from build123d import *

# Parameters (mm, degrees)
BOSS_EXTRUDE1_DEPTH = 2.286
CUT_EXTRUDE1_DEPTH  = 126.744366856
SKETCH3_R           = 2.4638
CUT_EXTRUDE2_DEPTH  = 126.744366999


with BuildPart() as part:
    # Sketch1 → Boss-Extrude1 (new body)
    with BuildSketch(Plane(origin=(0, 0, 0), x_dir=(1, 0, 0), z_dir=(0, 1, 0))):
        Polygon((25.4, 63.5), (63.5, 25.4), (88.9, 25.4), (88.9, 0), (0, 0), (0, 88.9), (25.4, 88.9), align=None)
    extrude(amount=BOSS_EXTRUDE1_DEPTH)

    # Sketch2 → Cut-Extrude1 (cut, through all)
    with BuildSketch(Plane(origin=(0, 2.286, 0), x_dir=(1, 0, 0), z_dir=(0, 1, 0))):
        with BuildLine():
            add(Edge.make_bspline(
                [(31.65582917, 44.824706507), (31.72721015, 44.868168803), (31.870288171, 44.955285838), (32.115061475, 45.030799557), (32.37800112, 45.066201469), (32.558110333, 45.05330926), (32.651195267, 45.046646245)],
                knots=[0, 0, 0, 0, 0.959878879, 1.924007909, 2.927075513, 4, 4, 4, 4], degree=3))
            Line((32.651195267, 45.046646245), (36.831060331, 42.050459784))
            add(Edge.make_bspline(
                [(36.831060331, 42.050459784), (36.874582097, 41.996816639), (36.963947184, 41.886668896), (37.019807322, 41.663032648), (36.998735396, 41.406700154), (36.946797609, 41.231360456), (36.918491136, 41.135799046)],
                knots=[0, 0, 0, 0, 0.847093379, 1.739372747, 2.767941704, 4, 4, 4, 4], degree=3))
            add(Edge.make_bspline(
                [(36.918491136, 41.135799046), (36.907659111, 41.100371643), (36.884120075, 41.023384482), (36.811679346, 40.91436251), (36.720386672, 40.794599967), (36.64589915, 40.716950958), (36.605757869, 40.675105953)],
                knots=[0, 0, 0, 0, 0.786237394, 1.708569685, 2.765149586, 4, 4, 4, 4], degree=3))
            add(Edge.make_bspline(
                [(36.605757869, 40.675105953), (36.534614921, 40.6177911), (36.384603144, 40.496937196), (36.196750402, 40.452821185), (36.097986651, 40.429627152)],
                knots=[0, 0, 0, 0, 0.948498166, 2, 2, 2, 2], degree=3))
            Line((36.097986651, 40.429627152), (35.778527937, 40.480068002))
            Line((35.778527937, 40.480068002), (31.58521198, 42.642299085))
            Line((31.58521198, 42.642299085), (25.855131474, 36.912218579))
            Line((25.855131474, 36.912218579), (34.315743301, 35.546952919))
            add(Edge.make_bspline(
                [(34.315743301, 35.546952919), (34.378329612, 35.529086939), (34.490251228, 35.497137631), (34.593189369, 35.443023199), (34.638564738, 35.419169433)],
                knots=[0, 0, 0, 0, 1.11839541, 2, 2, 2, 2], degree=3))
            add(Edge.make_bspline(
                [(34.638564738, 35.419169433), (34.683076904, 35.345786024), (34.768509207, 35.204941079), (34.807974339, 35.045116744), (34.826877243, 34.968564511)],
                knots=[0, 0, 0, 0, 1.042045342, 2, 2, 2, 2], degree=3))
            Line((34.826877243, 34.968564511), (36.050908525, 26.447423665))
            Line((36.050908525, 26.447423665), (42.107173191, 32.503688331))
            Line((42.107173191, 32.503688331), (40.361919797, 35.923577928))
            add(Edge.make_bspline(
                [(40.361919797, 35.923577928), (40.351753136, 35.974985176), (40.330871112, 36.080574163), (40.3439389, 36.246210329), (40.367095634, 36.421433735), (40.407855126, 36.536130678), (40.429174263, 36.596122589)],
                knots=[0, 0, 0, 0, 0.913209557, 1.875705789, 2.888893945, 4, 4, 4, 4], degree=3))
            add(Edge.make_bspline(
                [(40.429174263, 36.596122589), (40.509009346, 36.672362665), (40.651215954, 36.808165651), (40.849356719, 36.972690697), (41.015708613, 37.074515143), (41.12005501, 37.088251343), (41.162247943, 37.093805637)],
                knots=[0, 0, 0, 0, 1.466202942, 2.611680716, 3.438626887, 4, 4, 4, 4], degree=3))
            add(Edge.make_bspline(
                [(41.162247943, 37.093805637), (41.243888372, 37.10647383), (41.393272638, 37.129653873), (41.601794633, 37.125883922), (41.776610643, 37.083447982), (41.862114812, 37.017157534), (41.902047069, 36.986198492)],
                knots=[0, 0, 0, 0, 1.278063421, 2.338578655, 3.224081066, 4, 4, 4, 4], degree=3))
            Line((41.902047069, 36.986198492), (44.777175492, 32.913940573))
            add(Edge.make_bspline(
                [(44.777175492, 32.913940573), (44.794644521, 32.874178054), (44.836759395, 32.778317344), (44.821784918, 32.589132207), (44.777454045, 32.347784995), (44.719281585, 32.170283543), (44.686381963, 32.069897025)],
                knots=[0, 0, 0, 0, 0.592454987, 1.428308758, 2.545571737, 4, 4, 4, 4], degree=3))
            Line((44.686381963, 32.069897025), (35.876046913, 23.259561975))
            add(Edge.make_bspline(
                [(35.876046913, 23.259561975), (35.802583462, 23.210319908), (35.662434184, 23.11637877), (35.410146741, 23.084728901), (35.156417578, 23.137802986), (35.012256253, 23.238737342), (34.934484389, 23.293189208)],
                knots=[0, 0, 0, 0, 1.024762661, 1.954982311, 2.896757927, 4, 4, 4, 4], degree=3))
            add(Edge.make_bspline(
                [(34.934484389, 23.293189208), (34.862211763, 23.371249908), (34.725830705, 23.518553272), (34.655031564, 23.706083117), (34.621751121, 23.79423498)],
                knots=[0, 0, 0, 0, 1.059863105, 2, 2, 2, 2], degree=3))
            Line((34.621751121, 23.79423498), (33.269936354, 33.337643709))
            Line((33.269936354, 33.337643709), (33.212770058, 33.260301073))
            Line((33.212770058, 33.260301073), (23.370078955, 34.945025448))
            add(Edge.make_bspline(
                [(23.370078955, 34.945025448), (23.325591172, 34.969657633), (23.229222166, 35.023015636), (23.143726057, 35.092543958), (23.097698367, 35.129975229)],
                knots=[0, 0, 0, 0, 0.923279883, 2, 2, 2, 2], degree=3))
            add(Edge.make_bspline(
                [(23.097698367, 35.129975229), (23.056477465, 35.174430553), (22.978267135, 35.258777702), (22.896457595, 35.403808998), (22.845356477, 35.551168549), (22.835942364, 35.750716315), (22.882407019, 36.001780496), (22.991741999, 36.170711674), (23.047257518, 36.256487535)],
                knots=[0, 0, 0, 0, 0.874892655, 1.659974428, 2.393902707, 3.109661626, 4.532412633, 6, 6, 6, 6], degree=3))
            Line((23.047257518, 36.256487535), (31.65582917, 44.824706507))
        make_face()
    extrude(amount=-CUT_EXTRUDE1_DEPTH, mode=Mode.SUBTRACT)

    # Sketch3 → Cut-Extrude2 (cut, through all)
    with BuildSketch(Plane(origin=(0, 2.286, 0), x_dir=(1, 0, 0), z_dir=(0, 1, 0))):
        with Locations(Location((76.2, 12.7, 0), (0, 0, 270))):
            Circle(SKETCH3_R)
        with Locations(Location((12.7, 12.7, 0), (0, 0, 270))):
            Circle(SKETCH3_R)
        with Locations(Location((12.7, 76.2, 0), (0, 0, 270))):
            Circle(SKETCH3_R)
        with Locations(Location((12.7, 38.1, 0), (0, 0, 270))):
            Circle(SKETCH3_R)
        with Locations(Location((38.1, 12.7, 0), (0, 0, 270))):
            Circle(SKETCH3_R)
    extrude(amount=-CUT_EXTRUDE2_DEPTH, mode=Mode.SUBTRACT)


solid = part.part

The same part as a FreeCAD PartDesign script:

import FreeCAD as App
import Part
import Sketcher
from FreeCAD import Vector
Q = App.Units.Quantity

doc = App.newDocument("Part")
body = doc.addObject("PartDesign::Body", "Body")

# Sketch on XZ plane
sketch1 = body.newObject("Sketcher::SketchObject", "Sketch")
sketch1.AttachmentSupport = (doc.getObject("XZ_Plane"), [""])
sketch1.MapMode = "FlatFace"
sketch1.addGeometry(Part.LineSegment(Vector(63.5, -25.4, 0), Vector(25.4, -63.5, 0)), False)
sketch1.addGeometry(Part.LineSegment(Vector(25.4, -63.5, 0), Vector(25.4, -88.9, 0)), False)
sketch1.addGeometry(Part.LineSegment(Vector(25.4, -88.9, 0), Vector(0, -88.9, 0)), False)
sketch1.addGeometry(Part.LineSegment(Vector(0, -88.9, 0), Vector(0, 0, 0)), False)
sketch1.addGeometry(Part.LineSegment(Vector(0, 0, 0), Vector(88.9, 0, 0)), False)
sketch1.addGeometry(Part.LineSegment(Vector(88.9, 0, 0), Vector(88.9, -25.4, 0)), False)
sketch1.addGeometry(Part.LineSegment(Vector(88.9, -25.4, 0), Vector(63.5, -25.4, 0)), False)
sketch1.addConstraint(Sketcher.Constraint("Coincident", 0, 2, 1, 1))
sketch1.addConstraint(Sketcher.Constraint("Coincident", 1, 2, 2, 1))
sketch1.addConstraint(Sketcher.Constraint("Coincident", 2, 2, 3, 1))
sketch1.addConstraint(Sketcher.Constraint("Coincident", 3, 2, 4, 1))
sketch1.addConstraint(Sketcher.Constraint("Coincident", 4, 2, 5, 1))
sketch1.addConstraint(Sketcher.Constraint("Coincident", 5, 2, 6, 1))
sketch1.addConstraint(Sketcher.Constraint("Coincident", 6, 2, 0, 1))
sketch1.addConstraint(Sketcher.Constraint("Vertical", 1))
sketch1.addConstraint(Sketcher.Constraint("Horizontal", 2))
sketch1.addConstraint(Sketcher.Constraint("Vertical", 3))
sketch1.addConstraint(Sketcher.Constraint("Horizontal", 4))
sketch1.addConstraint(Sketcher.Constraint("Vertical", 5))
sketch1.addConstraint(Sketcher.Constraint("Horizontal", 6))
sketch1.addConstraint(Sketcher.Constraint("Coincident", 3, 2, -1, 1))
sketch1.addConstraint(Sketcher.Constraint("Equal", 2, 6))
sketch1.addConstraint(Sketcher.Constraint("Equal", 6, 1))
sketch1.addConstraint(Sketcher.Constraint("Equal", 4, 3))
sketch1.addConstraint(Sketcher.Constraint("Equal", 1, 5))
sketch1.addConstraint(Sketcher.Constraint("DistanceX", 2, 2, 2, 1, Q("1 in")))
sketch1.addConstraint(Sketcher.Constraint("DistanceX", 4, 1, 4, 2, Q("3.5 in")))
pad1 = body.newObject("PartDesign::Pad", "Pad")
pad1.Profile = sketch1
pad1.Length = Q("0.09 in")
pad1.Reversed = True

# Sketch on XZ plane
sketch2 = body.newObject("Sketcher::SketchObject", "Sketch001")
sketch2.AttachmentSupport = (doc.getObject("XZ_Plane"), [""])
sketch2.MapMode = "FlatFace"
sketch2.AttachmentOffset = App.Placement(Vector(0, 0, -0.09 * 25.4), App.Rotation())
sketch2.addGeometry(Part.BSplineCurve([Vector(31.655829, -44.824707, 0), Vector(31.72721, -44.868169, 0), Vector(31.870288, -44.955286, 0), Vector(32.115061, -45.0308, 0), Vector(32.378001, -45.066201, 0), Vector(32.55811, -45.053309, 0), Vector(32.651195, -45.046646, 0)], [4, 1, 1, 1, 4], [0, 0.959878879, 1.924007909, 2.927075513, 4], False, 3, [1, 1, 1, 1, 1, 1, 1], False), False)
sketch2.addGeometry(Part.LineSegment(Vector(31.655829, -44.824707, 0), Vector(23.047258, -36.256488, 0)), False)
sketch2.addGeometry(Part.BSplineCurve([Vector(23.097698, -35.129975, 0), Vector(23.056477, -35.174431, 0), Vector(22.978267, -35.258778, 0), Vector(22.896458, -35.403809, 0), Vector(22.845356, -35.551169, 0), Vector(22.835942, -35.750716, 0), Vector(22.882407, -36.00178, 0), Vector(22.991742, -36.170712, 0), Vector(23.047258, -36.256488, 0)], [4, 1, 1, 1, 1, 1, 4], [0, 0.874892655, 1.659974428, 2.393902707, 3.109661626, 4.532412633, 6], False, 3, [1, 1, 1, 1, 1, 1, 1, 1, 1], False), False)
sketch2.addGeometry(Part.BSplineCurve([Vector(23.370079, -34.945025, 0), Vector(23.325591, -34.969658, 0), Vector(23.229222, -35.023016, 0), Vector(23.143726, -35.092544, 0), Vector(23.097698, -35.129975, 0)], [4, 1, 4], [0, 0.923279883, 2], False, 3, [1, 1, 1, 1, 1], False), False)
sketch2.addGeometry(Part.LineSegment(Vector(23.370079, -34.945025, 0), Vector(33.21277, -33.260301, 0)), False)
sketch2.addGeometry(Part.LineSegment(Vector(33.21277, -33.260301, 0), Vector(33.269936, -33.337644, 0)), False)
sketch2.addGeometry(Part.LineSegment(Vector(33.269936, -33.337644, 0), Vector(34.621751, -23.794235, 0)), False)
sketch2.addGeometry(Part.BSplineCurve([Vector(34.934484, -23.293189, 0), Vector(34.862212, -23.37125, 0), Vector(34.725831, -23.518553, 0), Vector(34.655032, -23.706083, 0), Vector(34.621751, -23.794235, 0)], [4, 1, 4], [0, 1.059863105, 2], False, 3, [1, 1, 1, 1, 1], False), False)
sketch2.addGeometry(Part.BSplineCurve([Vector(35.876047, -23.259562, 0), Vector(35.802583, -23.21032, 0), Vector(35.662434, -23.116379, 0), Vector(35.410147, -23.084729, 0), Vector(35.156418, -23.137803, 0), Vector(35.012256, -23.238737, 0), Vector(34.934484, -23.293189, 0)], [4, 1, 1, 1, 4], [0, 1.024762661, 1.954982311, 2.896757927, 4], False, 3, [1, 1, 1, 1, 1, 1, 1], False), False)
sketch2.addGeometry(Part.LineSegment(Vector(35.876047, -23.259562, 0), Vector(44.686382, -32.069897, 0)), False)
sketch2.addGeometry(Part.BSplineCurve([Vector(44.777175, -32.913941, 0), Vector(44.794645, -32.874178, 0), Vector(44.836759, -32.778317, 0), Vector(44.821785, -32.589132, 0), Vector(44.777454, -32.347785, 0), Vector(44.719282, -32.170284, 0), Vector(44.686382, -32.069897, 0)], [4, 1, 1, 1, 4], [0, 0.592454987, 1.428308758, 2.545571737, 4], False, 3, [1, 1, 1, 1, 1, 1, 1], False), False)
sketch2.addGeometry(Part.LineSegment(Vector(44.777175, -32.913941, 0), Vector(41.902047, -36.986198, 0)), False)
sketch2.addGeometry(Part.BSplineCurve([Vector(41.162248, -37.093806, 0), Vector(41.243888, -37.106474, 0), Vector(41.393273, -37.129654, 0), Vector(41.601795, -37.125884, 0), Vector(41.776611, -37.083448, 0), Vector(41.862115, -37.017158, 0), Vector(41.902047, -36.986198, 0)], [4, 1, 1, 1, 4], [0, 1.278063421, 2.338578655, 3.224081066, 4], False, 3, [1, 1, 1, 1, 1, 1, 1], False), False)
sketch2.addGeometry(Part.BSplineCurve([Vector(40.429174, -36.596123, 0), Vector(40.509009, -36.672363, 0), Vector(40.651216, -36.808166, 0), Vector(40.849357, -36.972691, 0), Vector(41.015709, -37.074515, 0), Vector(41.120055, -37.088251, 0), Vector(41.162248, -37.093806, 0)], [4, 1, 1, 1, 4], [0, 1.466202942, 2.611680716, 3.438626887, 4], False, 3, [1, 1, 1, 1, 1, 1, 1], False), False)
sketch2.addGeometry(Part.BSplineCurve([Vector(40.36192, -35.923578, 0), Vector(40.351753, -35.974985, 0), Vector(40.330871, -36.080574, 0), Vector(40.343939, -36.24621, 0), Vector(40.367096, -36.421434, 0), Vector(40.407855, -36.536131, 0), Vector(40.429174, -36.596123, 0)], [4, 1, 1, 1, 4], [0, 0.913209557, 1.875705789, 2.888893945, 4], False, 3, [1, 1, 1, 1, 1, 1, 1], False), False)
sketch2.addGeometry(Part.LineSegment(Vector(40.36192, -35.923578, 0), Vector(42.107173, -32.503688, 0)), False)
sketch2.addGeometry(Part.LineSegment(Vector(42.107173, -32.503688, 0), Vector(36.050909, -26.447424, 0)), False)
sketch2.addGeometry(Part.LineSegment(Vector(36.050909, -26.447424, 0), Vector(34.826877, -34.968565, 0)), False)
sketch2.addGeometry(Part.BSplineCurve([Vector(34.638565, -35.419169, 0), Vector(34.683077, -35.345786, 0), Vector(34.768509, -35.204941, 0), Vector(34.807974, -35.045117, 0), Vector(34.826877, -34.968565, 0)], [4, 1, 4], [0, 1.042045342, 2], False, 3, [1, 1, 1, 1, 1], False), False)
sketch2.addGeometry(Part.BSplineCurve([Vector(34.315743, -35.546953, 0), Vector(34.37833, -35.529087, 0), Vector(34.490251, -35.497138, 0), Vector(34.593189, -35.443023, 0), Vector(34.638565, -35.419169, 0)], [4, 1, 4], [0, 1.11839541, 2], False, 3, [1, 1, 1, 1, 1], False), False)
sketch2.addGeometry(Part.LineSegment(Vector(34.315743, -35.546953, 0), Vector(25.855131, -36.912219, 0)), False)
sketch2.addGeometry(Part.LineSegment(Vector(25.855131, -36.912219, 0), Vector(31.585212, -42.642299, 0)), False)
sketch2.addGeometry(Part.LineSegment(Vector(31.585212, -42.642299, 0), Vector(35.778528, -40.480068, 0)), False)
sketch2.addGeometry(Part.LineSegment(Vector(35.778528, -40.480068, 0), Vector(36.097987, -40.429627, 0)), False)
sketch2.addGeometry(Part.BSplineCurve([Vector(36.605758, -40.675106, 0), Vector(36.534615, -40.617791, 0), Vector(36.384603, -40.496937, 0), Vector(36.19675, -40.452821, 0), Vector(36.097987, -40.429627, 0)], [4, 1, 4], [0, 0.948498166, 2], False, 3, [1, 1, 1, 1, 1], False), False)
sketch2.addGeometry(Part.BSplineCurve([Vector(36.918491, -41.135799, 0), Vector(36.907659, -41.100372, 0), Vector(36.88412, -41.023384, 0), Vector(36.811679, -40.914363, 0), Vector(36.720387, -40.7946, 0), Vector(36.645899, -40.716951, 0), Vector(36.605758, -40.675106, 0)], [4, 1, 1, 1, 4], [0, 0.786237394, 1.708569685, 2.765149586, 4], False, 3, [1, 1, 1, 1, 1, 1, 1], False), False)
sketch2.addGeometry(Part.BSplineCurve([Vector(36.83106, -42.05046, 0), Vector(36.874582, -41.996817, 0), Vector(36.963947, -41.886669, 0), Vector(37.019807, -41.663033, 0), Vector(36.998735, -41.4067, 0), Vector(36.946798, -41.23136, 0), Vector(36.918491, -41.135799, 0)], [4, 1, 1, 1, 4], [0, 0.847093379, 1.739372747, 2.767941704, 4], False, 3, [1, 1, 1, 1, 1, 1, 1], False), False)
sketch2.addGeometry(Part.LineSegment(Vector(36.83106, -42.05046, 0), Vector(32.651195, -45.046646, 0)), False)
sketch2.addConstraint(Sketcher.Constraint("Block", 0))
sketch2.addConstraint(Sketcher.Constraint("Block", 2))
sketch2.addConstraint(Sketcher.Constraint("Block", 3))
sketch2.addConstraint(Sketcher.Constraint("Block", 7))
sketch2.addConstraint(Sketcher.Constraint("Block", 8))
sketch2.addConstraint(Sketcher.Constraint("Block", 10))
sketch2.addConstraint(Sketcher.Constraint("Block", 12))
sketch2.addConstraint(Sketcher.Constraint("Block", 13))
sketch2.addConstraint(Sketcher.Constraint("Block", 14))
sketch2.addConstraint(Sketcher.Constraint("Block", 18))
sketch2.addConstraint(Sketcher.Constraint("Block", 19))
sketch2.addConstraint(Sketcher.Constraint("Block", 24))
sketch2.addConstraint(Sketcher.Constraint("Block", 25))
sketch2.addConstraint(Sketcher.Constraint("Block", 26))
sketch2.addConstraint(Sketcher.Constraint("Coincident", 0, 1, 1, 1))
sketch2.addConstraint(Sketcher.Constraint("Coincident", 1, 2, 2, 2))
sketch2.addConstraint(Sketcher.Constraint("Coincident", 3, 1, 4, 1))
sketch2.addConstraint(Sketcher.Constraint("Coincident", 4, 2, 5, 1))
sketch2.addConstraint(Sketcher.Constraint("Coincident", 5, 2, 6, 1))
sketch2.addConstraint(Sketcher.Constraint("Coincident", 6, 2, 7, 2))
sketch2.addConstraint(Sketcher.Constraint("Coincident", 8, 1, 9, 1))
sketch2.addConstraint(Sketcher.Constraint("Coincident", 9, 2, 10, 2))
sketch2.addConstraint(Sketcher.Constraint("Coincident", 10, 1, 11, 1))
sketch2.addConstraint(Sketcher.Constraint("Coincident", 11, 2, 12, 2))
sketch2.addConstraint(Sketcher.Constraint("Coincident", 14, 1, 15, 1))
sketch2.addConstraint(Sketcher.Constraint("Coincident", 15, 2, 16, 1))
sketch2.addConstraint(Sketcher.Constraint("Coincident", 16, 2, 17, 1))
sketch2.addConstraint(Sketcher.Constraint("Coincident", 17, 2, 18, 2))
sketch2.addConstraint(Sketcher.Constraint("Coincident", 19, 1, 20, 1))
sketch2.addConstraint(Sketcher.Constraint("Coincident", 20, 2, 21, 1))
sketch2.addConstraint(Sketcher.Constraint("Coincident", 21, 2, 22, 1))
sketch2.addConstraint(Sketcher.Constraint("Coincident", 22, 2, 23, 1))
sketch2.addConstraint(Sketcher.Constraint("Coincident", 23, 2, 24, 2))
sketch2.addConstraint(Sketcher.Constraint("Coincident", 26, 1, 27, 1))
sketch2.addConstraint(Sketcher.Constraint("Coincident", 27, 2, 0, 2))
sketch2.addConstraint(Sketcher.Constraint("DistanceY", 4, 2, -1, 1, 33.260301))
sketch2.addConstraint(Sketcher.Constraint("DistanceY", 21, 2, -1, 1, 42.642299))
sketch2.addConstraint(Sketcher.Constraint("Distance", 16, 8.564852))
sketch2.addConstraint(Sketcher.Constraint("Distance", 20, 8.570059))
sketch2.addConstraint(Sketcher.Constraint("Distance", 22, 4.71796))
sketch2.addConstraint(Sketcher.Constraint("DistanceX", -1, 1, 4, 2, 33.21277))
sketch2.addConstraint(Sketcher.Constraint("DistanceY", 15, 2, -1, 1, 32.503688))
sketch2.addConstraint(Sketcher.Constraint("DistanceX", -1, 1, 16, 2, 36.050909))
sketch2.addConstraint(Sketcher.Constraint("DistanceX", -1, 1, 20, 2, 25.855131))
sketch2.addConstraint(Sketcher.Constraint("DistanceX", -1, 1, 21, 2, 31.585212))
sketch2.addConstraint(Sketcher.Constraint("DistanceY", 22, 2, -1, 1, 40.480068))
sketch2.addConstraint(Sketcher.Constraint("DistanceX", 1, 2, 5, 2, 10.222679))
sketch2.addConstraint(Sketcher.Constraint("DistanceY", 5, 2, 6, 2, 9.543409))
sketch2.addConstraint(Sketcher.Constraint("DistanceX", 15, 2, 9, 2, 2.579209))
pocket1 = body.newObject("PartDesign::Pocket", "Pocket")
pocket1.Profile = sketch2
pocket1.Type = "ThroughAll"
pocket1.Reversed = True

# Sketch on XZ plane
sketch3 = body.newObject("Sketcher::SketchObject", "Sketch002")
sketch3.AttachmentSupport = (doc.getObject("XZ_Plane"), [""])
sketch3.MapMode = "FlatFace"
sketch3.AttachmentOffset = App.Placement(Vector(0, 0, -0.09 * 25.4), App.Rotation())
sketch3.addGeometry(Part.Circle(Vector(76.2, -12.7, 0), Vector(0, 0, 1), 2.4638), False)
sketch3.addGeometry(Part.Circle(Vector(12.7, -12.7, 0), Vector(0, 0, 1), 2.4638), False)
sketch3.addGeometry(Part.Circle(Vector(12.7, -76.2, 0), Vector(0, 0, 1), 2.4638), False)
sketch3.addGeometry(Part.Circle(Vector(12.7, -38.1, 0), Vector(0, 0, 1), 2.4638), False)
sketch3.addGeometry(Part.Circle(Vector(38.1, -12.7, 0), Vector(0, 0, 1), 2.4638), False)
sketch3.addConstraint(Sketcher.Constraint("Equal", 0, 1))
sketch3.addConstraint(Sketcher.Constraint("Equal", 1, 2))
sketch3.addConstraint(Sketcher.Constraint("Equal", 2, 3))
sketch3.addConstraint(Sketcher.Constraint("Equal", 3, 4))
sketch3.addConstraint(Sketcher.Constraint("Horizontal", 0, 3, 1, 3))
sketch3.addConstraint(Sketcher.Constraint("Horizontal", 1, 3, 4, 3))
sketch3.addConstraint(Sketcher.Constraint("Vertical", 1, 3, 2, 3))
sketch3.addConstraint(Sketcher.Constraint("Vertical", 2, 3, 3, 3))
sketch3.addConstraint(Sketcher.Constraint("Diameter", 0, Q("0.194 in")))
sketch3.addConstraint(Sketcher.Constraint("DistanceX", -1, 1, 0, 3, Q("3 in")))
sketch3.addConstraint(Sketcher.Constraint("DistanceY", 2, 3, -1, 1, Q("3 in")))
sketch3.addConstraint(Sketcher.Constraint("DistanceY", 3, 3, 1, 3, Q("1 in")))
sketch3.addConstraint(Sketcher.Constraint("DistanceX", 1, 3, 4, 3, Q("1 in")))
sketch3.addConstraint(Sketcher.Constraint("DistanceY", 0, 3, -1, 1, Q("0.5 in")))
sketch3.addConstraint(Sketcher.Constraint("DistanceX", -1, 1, 1, 3, Q("0.5 in")))
pocket2 = body.newObject("PartDesign::Pocket", "Pocket001")
pocket2.Profile = sketch3
pocket2.Type = "ThroughAll"
pocket2.Reversed = True

doc.recompute()
